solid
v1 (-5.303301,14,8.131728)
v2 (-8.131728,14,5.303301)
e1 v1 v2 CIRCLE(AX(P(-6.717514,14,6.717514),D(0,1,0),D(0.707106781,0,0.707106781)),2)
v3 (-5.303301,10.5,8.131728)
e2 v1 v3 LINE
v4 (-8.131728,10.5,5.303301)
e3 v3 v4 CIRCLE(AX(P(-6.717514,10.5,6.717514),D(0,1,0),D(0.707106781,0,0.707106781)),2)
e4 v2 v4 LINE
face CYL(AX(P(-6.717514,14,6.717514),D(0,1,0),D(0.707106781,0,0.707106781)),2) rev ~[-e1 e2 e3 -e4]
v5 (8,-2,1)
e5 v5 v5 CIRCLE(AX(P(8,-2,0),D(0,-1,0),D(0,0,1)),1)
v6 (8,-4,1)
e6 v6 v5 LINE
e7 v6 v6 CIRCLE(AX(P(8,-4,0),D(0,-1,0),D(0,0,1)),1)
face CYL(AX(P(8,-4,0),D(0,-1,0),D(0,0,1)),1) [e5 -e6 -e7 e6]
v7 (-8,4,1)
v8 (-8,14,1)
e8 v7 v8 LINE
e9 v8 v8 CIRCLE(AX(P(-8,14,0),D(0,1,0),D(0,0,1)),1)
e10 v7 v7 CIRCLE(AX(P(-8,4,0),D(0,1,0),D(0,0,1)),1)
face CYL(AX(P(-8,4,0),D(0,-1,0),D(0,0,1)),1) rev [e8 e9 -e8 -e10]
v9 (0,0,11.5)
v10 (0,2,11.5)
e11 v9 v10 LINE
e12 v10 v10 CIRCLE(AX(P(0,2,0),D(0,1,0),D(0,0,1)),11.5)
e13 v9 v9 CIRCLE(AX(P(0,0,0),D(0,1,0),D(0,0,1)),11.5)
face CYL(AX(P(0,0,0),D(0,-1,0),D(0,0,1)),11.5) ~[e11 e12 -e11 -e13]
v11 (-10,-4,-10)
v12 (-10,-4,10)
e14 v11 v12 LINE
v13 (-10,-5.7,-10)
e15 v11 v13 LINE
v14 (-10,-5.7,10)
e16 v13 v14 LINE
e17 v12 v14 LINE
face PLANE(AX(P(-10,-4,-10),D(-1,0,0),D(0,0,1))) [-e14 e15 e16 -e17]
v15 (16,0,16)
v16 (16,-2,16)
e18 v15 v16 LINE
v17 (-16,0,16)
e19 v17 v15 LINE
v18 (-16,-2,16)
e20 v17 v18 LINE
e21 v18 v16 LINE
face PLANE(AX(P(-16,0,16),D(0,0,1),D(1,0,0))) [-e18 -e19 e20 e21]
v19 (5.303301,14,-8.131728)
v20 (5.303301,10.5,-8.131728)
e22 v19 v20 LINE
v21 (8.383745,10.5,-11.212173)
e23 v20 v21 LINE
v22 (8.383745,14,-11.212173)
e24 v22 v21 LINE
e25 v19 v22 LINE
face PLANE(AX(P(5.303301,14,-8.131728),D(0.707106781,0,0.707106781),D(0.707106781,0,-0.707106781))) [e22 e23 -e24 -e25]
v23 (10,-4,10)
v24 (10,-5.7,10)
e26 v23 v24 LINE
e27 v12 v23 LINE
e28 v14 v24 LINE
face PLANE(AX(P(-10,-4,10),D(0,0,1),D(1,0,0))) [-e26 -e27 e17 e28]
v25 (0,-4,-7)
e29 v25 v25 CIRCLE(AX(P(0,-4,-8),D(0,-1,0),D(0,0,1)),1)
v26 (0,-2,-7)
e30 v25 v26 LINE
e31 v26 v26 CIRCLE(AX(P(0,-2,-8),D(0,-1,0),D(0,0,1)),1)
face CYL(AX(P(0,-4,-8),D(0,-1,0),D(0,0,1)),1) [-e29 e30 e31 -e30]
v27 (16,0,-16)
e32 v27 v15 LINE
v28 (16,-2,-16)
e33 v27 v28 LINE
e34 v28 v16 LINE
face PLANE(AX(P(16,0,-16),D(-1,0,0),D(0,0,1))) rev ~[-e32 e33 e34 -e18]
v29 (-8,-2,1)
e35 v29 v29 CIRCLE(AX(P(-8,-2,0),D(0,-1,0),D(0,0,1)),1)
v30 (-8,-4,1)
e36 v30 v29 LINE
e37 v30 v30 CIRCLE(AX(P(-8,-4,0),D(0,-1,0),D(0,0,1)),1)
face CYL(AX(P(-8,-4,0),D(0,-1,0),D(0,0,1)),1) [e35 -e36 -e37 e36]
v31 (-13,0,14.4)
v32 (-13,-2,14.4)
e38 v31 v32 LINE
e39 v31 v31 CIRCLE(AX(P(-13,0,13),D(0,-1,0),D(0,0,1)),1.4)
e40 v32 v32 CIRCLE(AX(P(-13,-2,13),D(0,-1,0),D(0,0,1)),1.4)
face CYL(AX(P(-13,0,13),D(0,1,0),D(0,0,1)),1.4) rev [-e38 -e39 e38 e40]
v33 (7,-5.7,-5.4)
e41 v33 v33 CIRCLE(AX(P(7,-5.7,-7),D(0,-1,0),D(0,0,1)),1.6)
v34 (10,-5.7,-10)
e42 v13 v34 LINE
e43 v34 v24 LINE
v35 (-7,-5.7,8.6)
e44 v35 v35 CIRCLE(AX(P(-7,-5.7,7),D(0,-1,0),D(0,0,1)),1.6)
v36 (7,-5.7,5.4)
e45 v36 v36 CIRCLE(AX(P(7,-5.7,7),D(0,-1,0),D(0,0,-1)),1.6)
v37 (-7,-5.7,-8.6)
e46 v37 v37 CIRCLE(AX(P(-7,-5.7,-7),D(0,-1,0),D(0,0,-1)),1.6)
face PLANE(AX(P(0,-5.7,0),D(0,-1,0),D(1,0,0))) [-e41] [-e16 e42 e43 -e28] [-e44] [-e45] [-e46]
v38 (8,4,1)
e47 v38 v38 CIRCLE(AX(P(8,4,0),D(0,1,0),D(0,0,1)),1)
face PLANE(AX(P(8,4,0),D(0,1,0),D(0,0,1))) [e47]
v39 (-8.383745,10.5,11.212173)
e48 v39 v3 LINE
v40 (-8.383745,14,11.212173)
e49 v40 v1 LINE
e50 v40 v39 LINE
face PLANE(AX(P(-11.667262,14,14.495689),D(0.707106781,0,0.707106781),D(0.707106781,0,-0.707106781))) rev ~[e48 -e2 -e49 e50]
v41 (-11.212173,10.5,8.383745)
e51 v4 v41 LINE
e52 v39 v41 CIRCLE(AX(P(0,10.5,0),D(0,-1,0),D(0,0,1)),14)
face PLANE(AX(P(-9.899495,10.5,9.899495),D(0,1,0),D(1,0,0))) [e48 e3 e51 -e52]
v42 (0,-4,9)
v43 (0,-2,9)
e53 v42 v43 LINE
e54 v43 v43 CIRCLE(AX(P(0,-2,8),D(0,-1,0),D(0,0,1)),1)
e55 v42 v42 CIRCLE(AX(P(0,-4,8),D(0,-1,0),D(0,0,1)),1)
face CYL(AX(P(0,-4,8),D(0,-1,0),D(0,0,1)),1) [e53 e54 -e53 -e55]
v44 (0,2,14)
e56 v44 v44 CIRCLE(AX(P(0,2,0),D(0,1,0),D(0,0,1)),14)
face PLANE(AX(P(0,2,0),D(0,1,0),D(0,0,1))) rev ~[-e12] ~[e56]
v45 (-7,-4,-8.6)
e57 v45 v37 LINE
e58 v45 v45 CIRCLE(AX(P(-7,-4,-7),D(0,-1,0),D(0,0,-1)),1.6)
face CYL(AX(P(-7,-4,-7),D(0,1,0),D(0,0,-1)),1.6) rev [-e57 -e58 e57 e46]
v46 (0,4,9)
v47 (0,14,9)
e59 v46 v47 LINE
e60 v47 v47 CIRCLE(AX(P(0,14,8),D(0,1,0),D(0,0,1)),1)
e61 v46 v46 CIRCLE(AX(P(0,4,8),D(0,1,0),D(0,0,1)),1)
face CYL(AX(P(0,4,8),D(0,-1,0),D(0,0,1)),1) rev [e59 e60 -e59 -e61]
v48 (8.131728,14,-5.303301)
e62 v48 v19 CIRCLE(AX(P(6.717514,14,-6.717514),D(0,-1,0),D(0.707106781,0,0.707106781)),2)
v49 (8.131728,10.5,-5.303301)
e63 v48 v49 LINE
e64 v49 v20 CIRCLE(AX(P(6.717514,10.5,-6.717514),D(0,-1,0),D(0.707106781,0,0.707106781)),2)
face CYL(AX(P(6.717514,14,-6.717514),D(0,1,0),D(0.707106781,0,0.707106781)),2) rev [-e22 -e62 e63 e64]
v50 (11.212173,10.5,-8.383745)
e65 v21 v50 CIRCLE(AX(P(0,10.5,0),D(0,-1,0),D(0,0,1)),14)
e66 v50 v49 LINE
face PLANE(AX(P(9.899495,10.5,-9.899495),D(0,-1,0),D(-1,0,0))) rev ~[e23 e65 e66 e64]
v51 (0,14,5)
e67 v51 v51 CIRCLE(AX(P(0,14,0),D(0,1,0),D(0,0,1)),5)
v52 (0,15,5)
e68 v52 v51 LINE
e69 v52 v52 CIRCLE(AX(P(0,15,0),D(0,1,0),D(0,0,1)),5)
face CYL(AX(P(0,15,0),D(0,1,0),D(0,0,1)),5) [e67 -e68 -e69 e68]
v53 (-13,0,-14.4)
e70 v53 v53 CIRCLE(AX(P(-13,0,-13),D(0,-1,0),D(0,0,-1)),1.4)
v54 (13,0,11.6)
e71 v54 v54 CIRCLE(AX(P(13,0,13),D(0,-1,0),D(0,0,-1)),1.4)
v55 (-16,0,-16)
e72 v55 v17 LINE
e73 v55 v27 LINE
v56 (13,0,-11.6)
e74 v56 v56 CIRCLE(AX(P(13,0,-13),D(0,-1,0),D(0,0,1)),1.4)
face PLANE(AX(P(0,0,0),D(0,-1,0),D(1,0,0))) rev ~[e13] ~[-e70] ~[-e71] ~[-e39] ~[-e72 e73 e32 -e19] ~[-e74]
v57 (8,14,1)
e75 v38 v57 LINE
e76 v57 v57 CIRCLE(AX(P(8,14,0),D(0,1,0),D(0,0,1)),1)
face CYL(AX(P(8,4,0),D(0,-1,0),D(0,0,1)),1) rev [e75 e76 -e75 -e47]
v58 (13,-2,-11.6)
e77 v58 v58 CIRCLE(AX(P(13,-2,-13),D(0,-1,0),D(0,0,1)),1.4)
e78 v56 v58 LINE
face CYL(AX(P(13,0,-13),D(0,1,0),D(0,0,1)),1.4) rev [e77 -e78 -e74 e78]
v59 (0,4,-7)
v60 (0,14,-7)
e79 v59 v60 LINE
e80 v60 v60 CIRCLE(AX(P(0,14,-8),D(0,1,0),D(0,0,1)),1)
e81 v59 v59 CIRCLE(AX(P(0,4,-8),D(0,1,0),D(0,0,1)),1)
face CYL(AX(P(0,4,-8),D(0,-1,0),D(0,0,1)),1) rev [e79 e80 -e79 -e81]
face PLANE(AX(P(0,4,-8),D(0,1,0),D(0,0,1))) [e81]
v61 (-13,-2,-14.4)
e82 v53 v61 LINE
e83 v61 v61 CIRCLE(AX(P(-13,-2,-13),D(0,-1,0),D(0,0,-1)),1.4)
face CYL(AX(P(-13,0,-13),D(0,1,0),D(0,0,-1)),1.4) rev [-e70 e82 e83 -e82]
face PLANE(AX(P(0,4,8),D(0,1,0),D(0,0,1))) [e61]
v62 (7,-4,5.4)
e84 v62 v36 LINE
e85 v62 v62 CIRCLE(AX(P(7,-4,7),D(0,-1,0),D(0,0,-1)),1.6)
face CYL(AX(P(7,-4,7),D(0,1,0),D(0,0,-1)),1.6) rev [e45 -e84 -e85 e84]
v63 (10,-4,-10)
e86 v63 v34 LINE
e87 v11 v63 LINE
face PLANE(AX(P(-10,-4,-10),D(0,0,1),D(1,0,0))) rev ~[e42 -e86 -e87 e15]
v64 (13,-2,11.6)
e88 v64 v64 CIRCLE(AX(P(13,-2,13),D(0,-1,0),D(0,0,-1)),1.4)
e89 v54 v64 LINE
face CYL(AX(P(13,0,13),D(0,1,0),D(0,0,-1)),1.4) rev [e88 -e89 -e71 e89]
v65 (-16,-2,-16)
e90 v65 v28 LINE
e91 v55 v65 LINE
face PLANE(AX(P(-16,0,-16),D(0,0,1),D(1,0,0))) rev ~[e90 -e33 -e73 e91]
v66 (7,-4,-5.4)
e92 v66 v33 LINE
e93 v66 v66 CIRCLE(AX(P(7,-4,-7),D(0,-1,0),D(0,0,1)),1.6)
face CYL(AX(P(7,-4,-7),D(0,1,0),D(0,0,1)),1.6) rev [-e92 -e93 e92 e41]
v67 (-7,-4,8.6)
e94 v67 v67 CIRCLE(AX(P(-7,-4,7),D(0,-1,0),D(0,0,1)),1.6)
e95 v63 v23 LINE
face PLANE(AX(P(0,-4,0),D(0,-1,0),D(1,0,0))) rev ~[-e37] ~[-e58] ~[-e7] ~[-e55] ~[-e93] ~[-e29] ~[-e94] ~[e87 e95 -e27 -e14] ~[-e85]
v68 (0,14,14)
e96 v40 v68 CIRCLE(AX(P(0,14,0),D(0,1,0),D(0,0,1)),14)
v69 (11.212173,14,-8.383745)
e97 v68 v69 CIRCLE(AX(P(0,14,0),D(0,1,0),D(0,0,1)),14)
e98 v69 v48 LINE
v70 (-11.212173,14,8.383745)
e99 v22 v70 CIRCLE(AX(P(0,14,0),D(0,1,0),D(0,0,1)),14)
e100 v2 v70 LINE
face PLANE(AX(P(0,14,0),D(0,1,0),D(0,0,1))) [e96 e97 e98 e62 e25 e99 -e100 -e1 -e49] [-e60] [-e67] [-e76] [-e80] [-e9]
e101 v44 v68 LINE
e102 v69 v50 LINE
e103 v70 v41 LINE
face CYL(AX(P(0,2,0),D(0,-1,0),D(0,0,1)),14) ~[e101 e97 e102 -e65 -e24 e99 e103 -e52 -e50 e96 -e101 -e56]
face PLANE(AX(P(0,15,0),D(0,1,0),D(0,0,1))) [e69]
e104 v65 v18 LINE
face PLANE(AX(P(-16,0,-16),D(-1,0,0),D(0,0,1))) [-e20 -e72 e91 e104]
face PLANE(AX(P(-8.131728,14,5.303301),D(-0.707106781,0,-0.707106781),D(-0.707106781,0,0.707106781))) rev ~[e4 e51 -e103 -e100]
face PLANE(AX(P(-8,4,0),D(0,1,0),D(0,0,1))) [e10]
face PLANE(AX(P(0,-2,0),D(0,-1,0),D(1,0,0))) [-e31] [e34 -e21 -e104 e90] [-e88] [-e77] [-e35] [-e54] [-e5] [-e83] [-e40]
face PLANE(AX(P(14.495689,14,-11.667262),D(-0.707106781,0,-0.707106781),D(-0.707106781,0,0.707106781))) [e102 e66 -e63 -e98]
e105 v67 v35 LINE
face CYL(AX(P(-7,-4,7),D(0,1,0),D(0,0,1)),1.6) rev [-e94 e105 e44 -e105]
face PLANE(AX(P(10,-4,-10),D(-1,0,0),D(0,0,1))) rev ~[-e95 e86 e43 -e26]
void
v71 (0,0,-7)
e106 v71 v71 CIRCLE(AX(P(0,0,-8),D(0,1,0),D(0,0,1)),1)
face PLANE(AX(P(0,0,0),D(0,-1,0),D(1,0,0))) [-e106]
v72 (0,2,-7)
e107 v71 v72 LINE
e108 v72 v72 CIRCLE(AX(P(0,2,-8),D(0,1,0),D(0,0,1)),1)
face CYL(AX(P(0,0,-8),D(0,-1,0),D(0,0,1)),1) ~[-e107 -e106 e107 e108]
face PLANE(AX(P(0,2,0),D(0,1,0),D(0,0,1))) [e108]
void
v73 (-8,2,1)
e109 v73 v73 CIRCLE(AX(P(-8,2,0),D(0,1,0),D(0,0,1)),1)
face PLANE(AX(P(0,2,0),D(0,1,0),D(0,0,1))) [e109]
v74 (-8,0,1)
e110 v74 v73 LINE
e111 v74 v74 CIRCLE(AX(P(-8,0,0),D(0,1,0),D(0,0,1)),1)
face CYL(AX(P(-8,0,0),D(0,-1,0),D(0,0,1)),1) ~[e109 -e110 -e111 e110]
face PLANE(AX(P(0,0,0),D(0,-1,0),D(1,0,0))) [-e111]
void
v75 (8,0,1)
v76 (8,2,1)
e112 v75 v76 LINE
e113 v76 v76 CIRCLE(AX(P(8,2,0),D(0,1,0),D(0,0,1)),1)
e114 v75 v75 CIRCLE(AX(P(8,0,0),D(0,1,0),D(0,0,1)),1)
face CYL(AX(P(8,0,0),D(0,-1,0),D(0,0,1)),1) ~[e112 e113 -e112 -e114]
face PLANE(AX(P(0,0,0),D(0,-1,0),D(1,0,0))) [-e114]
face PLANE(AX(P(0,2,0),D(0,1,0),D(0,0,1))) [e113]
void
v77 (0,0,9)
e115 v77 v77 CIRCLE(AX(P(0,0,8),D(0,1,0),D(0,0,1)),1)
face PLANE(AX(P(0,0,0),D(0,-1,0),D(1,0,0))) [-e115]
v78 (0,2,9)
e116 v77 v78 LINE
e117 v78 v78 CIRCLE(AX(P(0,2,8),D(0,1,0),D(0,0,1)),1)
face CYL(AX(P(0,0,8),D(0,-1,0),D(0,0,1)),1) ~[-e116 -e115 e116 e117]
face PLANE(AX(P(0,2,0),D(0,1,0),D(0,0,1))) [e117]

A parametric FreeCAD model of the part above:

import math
import FreeCAD as App
import Part
import Sketcher
from FreeCAD import Vector
Q = App.Units.Quantity


def add_polygon(sketch, points):
    """Adds a closed chain of lines whose ends are joined by coincident constraints."""
    first, n = sketch.GeometryCount, len(points)
    for a, b in zip(points, points[1:] + points[:1]):
        sketch.addGeometry(Part.LineSegment(App.Vector(*a, 0), App.Vector(*b, 0)), False)
    for i in range(n):
        sketch.addConstraint(Sketcher.Constraint("Coincident", first + i, 2, first + (i + 1) % n, 1))

doc = App.newDocument("Part")
body = doc.addObject("PartDesign::Body", "Body")

sketch1 = body.newObject("Sketcher::SketchObject", "Sketch")
sketch1.AttachmentSupport = (doc.getObject("XZ_Plane"), [""])
sketch1.MapMode = "FlatFace"
sketch1.addGeometry([
    Part.Circle(Vector(0, 0, 0), Vector(0, 0, 1), 11.5),
    Part.Circle(Vector(0, -8, 0), Vector(0, 0, 1), 1),
    Part.Circle(Vector(-8, 0, 0), Vector(0, 0, 1), 1),
    Part.Circle(Vector(8, 0, 0), Vector(0, 0, 1), 1),
    Part.Circle(Vector(0, 8, 0), Vector(0, 0, 1), 1),
], False)
sketch1.addConstraint([
    Sketcher.Constraint("Coincident", 0, 3, -1, 1),
    Sketcher.Constraint("Equal", 1, 2),
    Sketcher.Constraint("Equal", 2, 3),
    Sketcher.Constraint("Equal", 3, 4),
    Sketcher.Constraint("Symmetric", 2, 3, 3, 3, -1, 1),
    Sketcher.Constraint("Symmetric", 1, 3, 4, 3, -1, 1),
    Sketcher.Constraint("PointOnObject", 1, 3, -2),
    Sketcher.Constraint("PointOnObject", 2, 3, -1),
    Sketcher.Constraint("Diameter", 0, Q("23 mm")),
    Sketcher.Constraint("Diameter", 1, Q("2 mm")),
    Sketcher.Constraint("DistanceY", 1, 3, -1, 1, Q("8 mm")),
    Sketcher.Constraint("DistanceX", 2, 3, -1, 1, Q("8 mm")),
])
pad1 = body.newObject("PartDesign::Pad", "Pad")
pad1.Profile = sketch1
pad1.Length = 2
pad1.Reversed = True

sketch2 = body.newObject("Sketcher::SketchObject", "Sketch001")
sketch2.AttachmentSupport = (doc.getObject("XZ_Plane"), [""])
sketch2.MapMode = "FlatFace"
sketch2.addGeometry(Part.Circle(Vector(0, 0, 0), Vector(0, 0, 1), 5), False)
sketch2.addConstraint([
    Sketcher.Constraint("Coincident", 0, 3, -1, 1),
    Sketcher.Constraint("Diameter", 0, Q("10 mm")),
])
pad2 = body.newObject("PartDesign::Pad", "Pad001")
pad2.Profile = sketch2
pad2.Length = 0.25

sketch3 = body.newObject("Sketcher::SketchObject", "Sketch002")
sketch3.AttachmentSupport = (doc.getObject("XZ_Plane"), [""])
sketch3.MapMode = "FlatFace"
sketch3.AttachmentOffset = App.Placement(Vector(0, 0, -2), App.Rotation())
sketch3.addGeometry(Part.Circle(Vector(0, 0, 0), Vector(0, 0, 1), 14), False)
sketch3.addConstraint([
    Sketcher.Constraint("Coincident", 0, 3, -1, 1),
    Sketcher.Constraint("Diameter", 0, Q("28 mm")),
])
pad3 = body.newObject("PartDesign::Pad", "Pad002")
pad3.Profile = sketch3
pad3.Length = 12
pad3.Reversed = True

sketch4 = body.newObject("Sketcher::SketchObject", "Sketch003")
sketch4.AttachmentSupport = (doc.getObject("XZ_Plane"), [""])
sketch4.MapMode = "FlatFace"
sketch4.AttachmentOffset = App.Placement(Vector(0, 0, -15), App.Rotation())
sketch4.addGeometry(Part.Circle(Vector(0, 0, 0), Vector(0, 0, 1), 5), False)
sketch4.addConstraint([
    Sketcher.Constraint("Coincident", 0, 3, -1, 1),
    Sketcher.Constraint("Diameter", 0, Q("10 mm")),
])
pad4 = body.newObject("PartDesign::Pad", "Pad003")
pad4.Profile = sketch4
pad4.Length = 1

sketch5 = body.newObject("Sketcher::SketchObject", "Sketch004")
sketch5.AttachmentSupport = (doc.getObject("XZ_Plane"), [""])
sketch5.MapMode = "FlatFace"
sketch5.AttachmentOffset = App.Placement(Vector(0, 0, -4), App.Rotation())
sketch5.addGeometry([
    Part.Circle(Vector(8, 0, 0), Vector(0, 0, 1), 1),
    Part.Circle(Vector(0, -8, 0), Vector(0, 0, 1), 1),
    Part.Circle(Vector(-8, 0, 0), Vector(0, 0, 1), 1),
    Part.Circle(Vector(0, 8, 0), Vector(0, 0, 1), 1),
], False)
sketch5.addConstraint([
    Sketcher.Constraint("Equal", 0, 1),
    Sketcher.Constraint("Equal", 1, 2),
    Sketcher.Constraint("Equal", 2, 3),
    Sketcher.Constraint("Symmetric", 0, 3, 2, 3, -1, 1),
    Sketcher.Constraint("Symmetric", 1, 3, 3, 3, -1, 1),
    Sketcher.Constraint("PointOnObject", 0, 3, -1),
    Sketcher.Constraint("PointOnObject", 1, 3, -2),
    Sketcher.Constraint("Diameter", 0, Q("2 mm")),
    Sketcher.Constraint("DistanceX", -1, 1, 0, 3, Q("8 mm")),
    Sketcher.Constraint("DistanceY", 1, 3, -1, 1, Q("8 mm")),
])
pocket1 = body.newObject("PartDesign::Pocket", "Pocket")
pocket1.Profile = sketch5
pocket1.Length = 10

sketch6 = body.newObject("Sketcher::SketchObject", "Sketch005")
sketch6.AttachmentSupport = (doc.getObject("XZ_Plane"), [""])
sketch6.MapMode = "FlatFace"
sketch6.AttachmentOffset = App.Placement(Vector(0, 0, -14), App.Rotation())
sketch6.addGeometry([
    Part.LineSegment(Vector(8.131728, -5.303301, 0), Vector(14.495689, -11.667262, 0)),
    Part.ArcOfCircle(Part.Circle(Vector(13.081475, -13.081475, 0), Vector(0, 0, 1), 2), math.radians(-135), math.radians(45)),
    Part.LineSegment(Vector(11.667262, -14.495689, 0), Vector(5.303301, -8.131728, 0)),
    Part.ArcOfCircle(Part.Circle(Vector(6.717514, -6.717514, 0), Vector(0, 0, 1), 2), math.radians(45), math.radians(225)),
    Part.LineSegment(Vector(-11.667262, 14.495689, 0), Vector(-5.303301, 8.131728, 0)),
    Part.ArcOfCircle(Part.Circle(Vector(-6.717514, 6.717514, 0), Vector(0, 0, 1), 2), math.radians(-135), math.radians(45)),
    Part.LineSegment(Vector(-8.131728, 5.303301, 0), Vector(-14.495689, 11.667262, 0)),
    Part.ArcOfCircle(Part.Circle(Vector(-13.081475, 13.081475, 0), Vector(0, 0, 1), 2), math.radians(45), math.radians(225)),
], False)
sketch6.addConstraint([
    Sketcher.Constraint("Tangent", 0, 2, 1, 2),
    Sketcher.Constraint("Tangent", 1, 1, 2, 1),
    Sketcher.Constraint("Tangent", 2, 2, 3, 2),
    Sketcher.Constraint("Tangent", 3, 1, 0, 1),
    Sketcher.Constraint("Tangent", 4, 2, 5, 2),
    Sketcher.Constraint("Tangent", 5, 1, 6, 1),
    Sketcher.Constraint("Tangent", 6, 2, 7, 2),
    Sketcher.Constraint("Tangent", 7, 1, 4, 1),
    Sketcher.Constraint("Equal", 1, 3),
    Sketcher.Constraint("Equal", 3, 5),
    Sketcher.Constraint("Equal", 5, 7),
    Sketcher.Constraint("Symmetric", 3, 3, 5, 3, -1, 1),
    Sketcher.Constraint("Symmetric", 1, 3, 7, 3, -1, 1),
    Sketcher.Constraint("Radius", 1, Q("2 mm")),
    Sketcher.Constraint("Angle", 0, Q("-45 deg")),
    Sketcher.Constraint("Distance", 0, Q("9 mm")),
    Sketcher.Constraint("DistanceX", -1, 1, 2, 2, Q("5.303301 mm")),
    Sketcher.Constraint("DistanceY", 3, 1, -1, 1, Q("5.303301 mm")),
])
pocket2 = body.newObject("PartDesign::Pocket", "Pocket001")
pocket2.Profile = sketch6
pocket2.Length = 3.5
pocket2.Reversed = True

sketch7 = body.newObject("Sketcher::SketchObject", "Sketch006")
sketch7.AttachmentSupport = (doc.getObject("XZ_Plane"), [""])
sketch7.MapMode = "FlatFace"
add_polygon(sketch7, [(-16, 16), (-16, -16), (16, -16), (16, 16)])
sketch7.addGeometry(Part.Circle(Vector(-13, -13, 0), Vector(0, 0, 1), 1.4), False)
sketch7.addGeometry(Part.Circle(Vector(13, -13, 0), Vector(0, 0, 1), 1.4), False)
sketch7.addGeometry(Part.Circle(Vector(-13, 13, 0), Vector(0, 0, 1), 1.4), False)
sketch7.addGeometry(Part.Circle(Vector(13, 13, 0), Vector(0, 0, 1), 1.4), False)
sketch7.addConstraint([
    Sketcher.Constraint("Vertical", 0),
    Sketcher.Constraint("Horizontal", 1),
    Sketcher.Constraint("Vertical", 2),
    Sketcher.Constraint("Horizontal", 3),
    Sketcher.Constraint("Equal", 4, 5),
    Sketcher.Constraint("Equal", 5, 6),
    Sketcher.Constraint("Equal", 6, 7),
    Sketcher.Constraint("Symmetric", 5, 3, 6, 3, -1, 1),
    Sketcher.Constraint("Symmetric", 4, 3, 7, 3, -1, 1),
    Sketcher.Constraint("Symmetric", 0, 2, 2, 2, -1, 1),
    Sketcher.Constraint("Symmetric", 4, 3, 5, 3, -2),
    Sketcher.Constraint("Equal", 3, 0),
    Sketcher.Constraint("Diameter", 4, Q("2.8 mm")),
    Sketcher.Constraint("DistanceX", 1, 1, 1, 2, Q("32 mm")),
    Sketcher.Constraint("DistanceX", 4, 3, -1, 1, Q("13 mm")),
    Sketcher.Constraint("DistanceY", 4, 3, -1, 1, Q("13 mm")),
])
pad5 = body.newObject("PartDesign::Pad", "Pad004")
pad5.Profile = sketch7
pad5.Length = 2

sketch8 = body.newObject("Sketcher::SketchObject", "Sketch007")
sketch8.AttachmentSupport = (doc.getObject("XZ_Plane"), [""])
sketch8.MapMode = "FlatFace"
sketch8.AttachmentOffset = App.Placement(Vector(0, 0, 4), App.Rotation())
sketch8.addGeometry([
    Part.Circle(Vector(8, 0, 0), Vector(0, 0, 1), 1),
    Part.Circle(Vector(0, -8, 0), Vector(0, 0, 1), 1),
    Part.Circle(Vector(-8, 0, 0), Vector(0, 0, 1), 1),
    Part.Circle(Vector(0, 8, 0), Vector(0, 0, 1), 1),
], False)
sketch8.addConstraint([
    Sketcher.Constraint("Equal", 0, 1),
    Sketcher.Constraint("Equal", 1, 2),
    Sketcher.Constraint("Equal", 2, 3),
    Sketcher.Constraint("Symmetric", 0, 3, 2, 3, -1, 1),
    Sketcher.Constraint("Symmetric", 1, 3, 3, 3, -1, 1),
    Sketcher.Constraint("PointOnObject", 0, 3, -1),
    Sketcher.Constraint("PointOnObject", 1, 3, -2),
    Sketcher.Constraint("Diameter", 0, Q("2 mm")),
    Sketcher.Constraint("DistanceX", -1, 1, 0, 3, Q("8 mm")),
    Sketcher.Constraint("DistanceY", 1, 3, -1, 1, Q("8 mm")),
])
pad6 = body.newObject("PartDesign::Pad", "Pad005")
pad6.Profile = sketch8
pad6.Length = 2
pad6.Reversed = True

sketch9 = body.newObject("Sketcher::SketchObject", "Sketch008")
sketch9.AttachmentSupport = (doc.getObject("XZ_Plane"), [""])
sketch9.MapMode = "FlatFace"
sketch9.AttachmentOffset = App.Placement(Vector(0, 0, 4), App.Rotation())
add_polygon(sketch9, [(-10, 10), (-10, -10), (10, -10), (10, 10)])
sketch9.addGeometry(Part.Circle(Vector(-7, -7, 0), Vector(0, 0, 1), 1.6), False)
sketch9.addGeometry(Part.Circle(Vector(7, -7, 0), Vector(0, 0, 1), 1.6), False)
sketch9.addGeometry(Part.Circle(Vector(-7, 7, 0), Vector(0, 0, 1), 1.6), False)
sketch9.addGeometry(Part.Circle(Vector(7, 7, 0), Vector(0, 0, 1), 1.6), False)
sketch9.addConstraint([
    Sketcher.Constraint("Vertical", 0),
    Sketcher.Constraint("Horizontal", 1),
    Sketcher.Constraint("Vertical", 2),
    Sketcher.Constraint("Horizontal", 3),
    Sketcher.Constraint("Equal", 4, 5),
    Sketcher.Constraint("Equal", 5, 6),
    Sketcher.Constraint("Equal", 6, 7),
    Sketcher.Constraint("Symmetric", 5, 3, 6, 3, -1, 1),
    Sketcher.Constraint("Symmetric", 4, 3, 7, 3, -1, 1),
    Sketcher.Constraint("Symmetric", 0, 2, 2, 2, -1, 1),
    Sketcher.Constraint("Symmetric", 4, 3, 5, 3, -2),
    Sketcher.Constraint("Equal", 3, 0),
    Sketcher.Constraint("Diameter", 4, Q("3.2 mm")),
    Sketcher.Constraint("DistanceX", 1, 1, 1, 2, Q("20 mm")),
    Sketcher.Constraint("DistanceX", 4, 3, -1, 1, Q("7 mm")),
    Sketcher.Constraint("DistanceY", 4, 3, -1, 1, Q("7 mm")),
])
pad7 = body.newObject("PartDesign::Pad", "Pad006")
pad7.Profile = sketch9
pad7.Length = 1.7

doc.recompute()
